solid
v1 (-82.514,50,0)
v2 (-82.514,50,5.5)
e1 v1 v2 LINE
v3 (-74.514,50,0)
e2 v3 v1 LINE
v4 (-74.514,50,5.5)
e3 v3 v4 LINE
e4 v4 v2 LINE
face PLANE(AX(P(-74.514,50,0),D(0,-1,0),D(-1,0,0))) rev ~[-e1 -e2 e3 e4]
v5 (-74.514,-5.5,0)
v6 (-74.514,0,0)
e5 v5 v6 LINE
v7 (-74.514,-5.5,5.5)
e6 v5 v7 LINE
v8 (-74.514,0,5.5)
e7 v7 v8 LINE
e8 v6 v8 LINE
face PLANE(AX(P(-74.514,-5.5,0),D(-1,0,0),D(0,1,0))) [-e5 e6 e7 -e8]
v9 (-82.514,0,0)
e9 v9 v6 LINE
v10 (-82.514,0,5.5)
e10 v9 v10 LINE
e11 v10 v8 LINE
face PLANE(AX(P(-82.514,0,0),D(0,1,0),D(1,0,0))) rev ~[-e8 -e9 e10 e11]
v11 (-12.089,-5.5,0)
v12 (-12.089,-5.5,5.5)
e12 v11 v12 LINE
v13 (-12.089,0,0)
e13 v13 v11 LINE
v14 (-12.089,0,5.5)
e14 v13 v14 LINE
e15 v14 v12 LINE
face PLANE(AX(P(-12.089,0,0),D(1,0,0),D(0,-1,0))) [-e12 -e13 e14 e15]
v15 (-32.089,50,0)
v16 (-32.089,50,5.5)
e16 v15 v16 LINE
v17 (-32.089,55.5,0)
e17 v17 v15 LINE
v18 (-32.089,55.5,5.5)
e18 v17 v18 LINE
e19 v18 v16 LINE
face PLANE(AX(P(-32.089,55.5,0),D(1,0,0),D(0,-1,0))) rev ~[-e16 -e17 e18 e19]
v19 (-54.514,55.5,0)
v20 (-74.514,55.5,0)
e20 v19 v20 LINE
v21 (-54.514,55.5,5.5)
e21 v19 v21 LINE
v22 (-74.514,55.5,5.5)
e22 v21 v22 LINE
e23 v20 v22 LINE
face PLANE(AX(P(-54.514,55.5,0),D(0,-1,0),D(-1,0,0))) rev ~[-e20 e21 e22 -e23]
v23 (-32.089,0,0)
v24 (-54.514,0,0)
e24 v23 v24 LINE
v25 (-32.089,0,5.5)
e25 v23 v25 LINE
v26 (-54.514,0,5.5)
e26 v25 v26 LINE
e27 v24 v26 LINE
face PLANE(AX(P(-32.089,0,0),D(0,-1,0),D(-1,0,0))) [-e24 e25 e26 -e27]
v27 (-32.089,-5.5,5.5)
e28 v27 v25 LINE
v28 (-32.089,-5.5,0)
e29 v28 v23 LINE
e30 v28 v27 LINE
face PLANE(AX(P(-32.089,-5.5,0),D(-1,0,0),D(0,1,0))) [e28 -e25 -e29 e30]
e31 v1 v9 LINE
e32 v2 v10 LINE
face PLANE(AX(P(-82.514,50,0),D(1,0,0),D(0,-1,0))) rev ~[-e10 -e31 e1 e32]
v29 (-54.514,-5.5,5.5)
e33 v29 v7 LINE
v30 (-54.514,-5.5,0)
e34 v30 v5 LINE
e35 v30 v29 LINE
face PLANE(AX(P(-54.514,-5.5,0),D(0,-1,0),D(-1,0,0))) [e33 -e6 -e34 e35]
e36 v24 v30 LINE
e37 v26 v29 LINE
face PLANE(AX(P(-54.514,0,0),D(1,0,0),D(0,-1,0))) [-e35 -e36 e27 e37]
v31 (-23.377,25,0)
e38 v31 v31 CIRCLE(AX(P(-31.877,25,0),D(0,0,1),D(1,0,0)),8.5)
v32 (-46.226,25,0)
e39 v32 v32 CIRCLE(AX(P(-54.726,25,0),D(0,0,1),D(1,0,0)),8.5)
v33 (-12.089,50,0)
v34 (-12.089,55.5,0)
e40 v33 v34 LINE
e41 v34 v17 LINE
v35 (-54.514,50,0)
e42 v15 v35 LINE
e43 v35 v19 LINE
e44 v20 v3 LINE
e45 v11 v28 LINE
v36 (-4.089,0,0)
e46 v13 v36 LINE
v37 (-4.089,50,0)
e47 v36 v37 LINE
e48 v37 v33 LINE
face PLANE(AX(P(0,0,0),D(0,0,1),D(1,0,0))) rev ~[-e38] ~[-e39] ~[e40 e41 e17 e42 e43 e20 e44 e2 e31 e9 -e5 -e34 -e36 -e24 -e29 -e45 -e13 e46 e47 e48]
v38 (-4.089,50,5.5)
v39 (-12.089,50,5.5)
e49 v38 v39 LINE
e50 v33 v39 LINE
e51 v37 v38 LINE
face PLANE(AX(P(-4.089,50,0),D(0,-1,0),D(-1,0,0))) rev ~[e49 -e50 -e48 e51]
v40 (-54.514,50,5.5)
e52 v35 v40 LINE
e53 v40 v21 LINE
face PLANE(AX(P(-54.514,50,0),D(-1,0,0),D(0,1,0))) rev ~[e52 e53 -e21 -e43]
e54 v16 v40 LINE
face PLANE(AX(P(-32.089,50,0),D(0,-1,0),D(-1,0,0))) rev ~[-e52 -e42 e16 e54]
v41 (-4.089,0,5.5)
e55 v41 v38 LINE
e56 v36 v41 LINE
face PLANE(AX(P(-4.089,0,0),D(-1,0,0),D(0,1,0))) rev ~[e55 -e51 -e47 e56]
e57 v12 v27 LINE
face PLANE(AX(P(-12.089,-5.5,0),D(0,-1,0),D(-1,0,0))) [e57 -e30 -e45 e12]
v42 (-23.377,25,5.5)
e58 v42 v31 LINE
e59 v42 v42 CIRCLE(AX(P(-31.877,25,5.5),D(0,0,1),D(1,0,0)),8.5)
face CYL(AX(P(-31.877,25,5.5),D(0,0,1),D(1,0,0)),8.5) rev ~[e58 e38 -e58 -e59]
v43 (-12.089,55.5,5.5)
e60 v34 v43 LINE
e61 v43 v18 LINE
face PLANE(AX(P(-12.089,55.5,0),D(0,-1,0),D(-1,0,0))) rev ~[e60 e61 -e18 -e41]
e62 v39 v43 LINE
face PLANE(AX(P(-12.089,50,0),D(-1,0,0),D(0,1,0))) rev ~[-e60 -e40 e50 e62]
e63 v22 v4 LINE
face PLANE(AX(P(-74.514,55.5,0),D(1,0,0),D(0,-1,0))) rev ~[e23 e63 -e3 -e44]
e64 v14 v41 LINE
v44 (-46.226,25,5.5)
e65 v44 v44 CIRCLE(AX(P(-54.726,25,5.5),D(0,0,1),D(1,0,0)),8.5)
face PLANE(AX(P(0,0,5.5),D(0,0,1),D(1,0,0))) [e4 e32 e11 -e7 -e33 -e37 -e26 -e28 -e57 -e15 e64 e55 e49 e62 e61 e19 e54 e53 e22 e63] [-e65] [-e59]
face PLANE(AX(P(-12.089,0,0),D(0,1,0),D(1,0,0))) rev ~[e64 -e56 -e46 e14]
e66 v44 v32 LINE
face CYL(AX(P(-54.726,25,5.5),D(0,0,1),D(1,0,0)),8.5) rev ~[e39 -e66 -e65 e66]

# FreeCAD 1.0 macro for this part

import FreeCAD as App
import Part
import Sketcher

V = App.Vector

doc = App.newDocument("Part")
params = doc.addObject("Spreadsheet::Sheet", "Params")
for row, (alias, value) in enumerate([
    ("sketch1_width", "8 mm"),
    ("sketch1_width2", "20 mm"),
    ("sketch1_height", "5.5 mm"),
    ("sketch1_height2", "50 mm"),
    ("pad1_length", "5.5 mm"),
    ("sketch2_diameter", "17 mm"),
    ("pocket1_length", "10 mm"),
], start=1):
    params.set(f"A{row}", alias)
    params.set(f"B{row}", "=" + value)
    params.setAlias(f"B{row}", alias)

body = doc.addObject("PartDesign::Body", "Body")

# Sketch on XY plane
sketch1 = doc.addObject("Sketcher::SketchObject", "Sketch")
body.addObject(sketch1)
sketch1.AttachmentSupport = (doc.XY_Plane, [""])
sketch1.MapMode = "FlatFace"
sketch1.addGeometry(Part.LineSegment(V(-12, -6, 0), V(-12, 0, 0)), False)
sketch1.addGeometry(Part.LineSegment(V(-12, 0, 0), V(-4, 0, 0)), False)
sketch1.addGeometry(Part.LineSegment(V(-4, 0, 0), V(-4, 50, 0)), False)
sketch1.addGeometry(Part.LineSegment(V(-4, 50, 0), V(-12, 50, 0)), False)
sketch1.addGeometry(Part.LineSegment(V(-12, 50, 0), V(-12, 56, 0)), False)
sketch1.addGeometry(Part.LineSegment(V(-12, 56, 0), V(-32, 56, 0)), False)
sketch1.addGeometry(Part.LineSegment(V(-32, 56, 0), V(-32, 50, 0)), False)
sketch1.addGeometry(Part.LineSegment(V(-32, 50, 0), V(-55, 50, 0)), False)
sketch1.addGeometry(Part.LineSegment(V(-55, 50, 0), V(-55, 56, 0)), False)
sketch1.addGeometry(Part.LineSegment(V(-55, 56, 0), V(-75, 56, 0)), False)
sketch1.addGeometry(Part.LineSegment(V(-75, 56, 0), V(-75, 50, 0)), False)
sketch1.addGeometry(Part.LineSegment(V(-75, 50, 0), V(-83, 50, 0)), False)
sketch1.addGeometry(Part.LineSegment(V(-83, 50, 0), V(-83, 0, 0)), False)
sketch1.addGeometry(Part.LineSegment(V(-83, 0, 0), V(-75, 0, 0)), False)
sketch1.addGeometry(Part.LineSegment(V(-75, 0, 0), V(-75, -6, 0)), False)
sketch1.addGeometry(Part.LineSegment(V(-75, -6, 0), V(-55, -6, 0)), False)
sketch1.addGeometry(Part.LineSegment(V(-55, -6, 0), V(-55, 0, 0)), False)
sketch1.addGeometry(Part.LineSegment(V(-55, 0, 0), V(-32, 0, 0)), False)
sketch1.addGeometry(Part.LineSegment(V(-32, 0, 0), V(-32, -6, 0)), False)
sketch1.addGeometry(Part.LineSegment(V(-32, -6, 0), V(-12, -6, 0)), False)
sketch1.addConstraint(Sketcher.Constraint("Coincident", 0, 2, 1, 1))
sketch1.addConstraint(Sketcher.Constraint("Coincident", 1, 2, 2, 1))
sketch1.addConstraint(Sketcher.Constraint("Coincident", 2, 2, 3, 1))
sketch1.addConstraint(Sketcher.Constraint("Coincident", 3, 2, 4, 1))
sketch1.addConstraint(Sketcher.Constraint("Coincident", 4, 2, 5, 1))
sketch1.addConstraint(Sketcher.Constraint("Coincident", 5, 2, 6, 1))
sketch1.addConstraint(Sketcher.Constraint("Coincident", 6, 2, 7, 1))
sketch1.addConstraint(Sketcher.Constraint("Coincident", 7, 2, 8, 1))
sketch1.addConstraint(Sketcher.Constraint("Coincident", 8, 2, 9, 1))
sketch1.addConstraint(Sketcher.Constraint("Coincident", 9, 2, 10, 1))
sketch1.addConstraint(Sketcher.Constraint("Coincident", 10, 2, 11, 1))
sketch1.addConstraint(Sketcher.Constraint("Coincident", 11, 2, 12, 1))
sketch1.addConstraint(Sketcher.Constraint("Coincident", 12, 2, 13, 1))
sketch1.addConstraint(Sketcher.Constraint("Coincident", 13, 2, 14, 1))
sketch1.addConstraint(Sketcher.Constraint("Coincident", 14, 2, 15, 1))
sketch1.addConstraint(Sketcher.Constraint("Coincident", 15, 2, 16, 1))
sketch1.addConstraint(Sketcher.Constraint("Coincident", 16, 2, 17, 1))
sketch1.addConstraint(Sketcher.Constraint("Coincident", 17, 2, 18, 1))
sketch1.addConstraint(Sketcher.Constraint("Coincident", 18, 2, 19, 1))
sketch1.addConstraint(Sketcher.Constraint("Coincident", 19, 2, 0, 1))
sketch1.addConstraint(Sketcher.Constraint("Vertical", 0))
sketch1.addConstraint(Sketcher.Constraint("Horizontal", 1))
sketch1.addConstraint(Sketcher.Constraint("Vertical", 2))
sketch1.addConstraint(Sketcher.Constraint("Horizontal", 3))
sketch1.addConstraint(Sketcher.Constraint("Vertical", 4))
sketch1.addConstraint(Sketcher.Constraint("Horizontal", 5))
sketch1.addConstraint(Sketcher.Constraint("Vertical", 6))
sketch1.addConstraint(Sketcher.Constraint("Horizontal", 7))
sketch1.addConstraint(Sketcher.Constraint("Vertical", 8))
sketch1.addConstraint(Sketcher.Constraint("Horizontal", 9))
sketch1.addConstraint(Sketcher.Constraint("Vertical", 10))
sketch1.addConstraint(Sketcher.Constraint("Horizontal", 11))
sketch1.addConstraint(Sketcher.Constraint("Vertical", 12))
sketch1.addConstraint(Sketcher.Constraint("Horizontal", 13))
sketch1.addConstraint(Sketcher.Constraint("Vertical", 14))
sketch1.addConstraint(Sketcher.Constraint("Horizontal", 15))
sketch1.addConstraint(Sketcher.Constraint("Vertical", 16))
sketch1.addConstraint(Sketcher.Constraint("Horizontal", 17))
sketch1.addConstraint(Sketcher.Constraint("Vertical", 18))
sketch1.addConstraint(Sketcher.Constraint("Horizontal", 19))
sketch1.addConstraint(Sketcher.Constraint("PointOnObject", 0, 2, -1))
sketch1.addConstraint(Sketcher.Constraint("PointOnObject", 12, 2, -1))
sketch1.addConstraint(Sketcher.Constraint("PointOnObject", 16, 2, -1))
sketch1.addConstraint(Sketcher.Constraint("Horizontal", 3, 2, 6, 2))
sketch1.addConstraint(Sketcher.Constraint("Horizontal", 5, 2, 8, 2))
sketch1.addConstraint(Sketcher.Constraint("Horizontal", 7, 2, 10, 2))
sketch1.addConstraint(Sketcher.Constraint("Horizontal", 15, 2, 18, 2))
sketch1.addConstraint(Sketcher.Constraint("Vertical", 0, 2, 3, 2))
sketch1.addConstraint(Sketcher.Constraint("Vertical", 10, 2, 13, 2))
sketch1.addConstraint(Sketcher.Constraint("Vertical", 8, 2, 15, 2))
sketch1.addConstraint(Sketcher.Constraint("Vertical", 6, 2, 17, 2))
sketch1.addConstraint(Sketcher.Constraint("Equal", 5, 9))
sketch1.addConstraint(Sketcher.Constraint("Equal", 3, 11))
sketch1.addConstraint(Sketcher.Constraint("Equal", 0, 4))
sketch1.addConstraint(Sketcher.Constraint("DistanceX", 1, 1, 1, 2, 8.0))
sketch1.addConstraint(Sketcher.Constraint("DistanceX", 5, 2, 5, 1, 20.0))
sketch1.addConstraint(Sketcher.Constraint("DistanceY", 0, 1, 0, 2, 5.5))
sketch1.addConstraint(Sketcher.Constraint("DistanceY", 2, 1, 2, 2, 50.0))
sketch1.addConstraint(Sketcher.Constraint("DistanceX", 7, 2, 7, 1, 22.425))
sketch1.addConstraint(Sketcher.Constraint("DistanceX", 0, 2, -1, 1, 12.089))
sketch1.setExpression("Constraints[54]", "Params.sketch1_width")
sketch1.setExpression("Constraints[55]", "Params.sketch1_width2")
sketch1.setExpression("Constraints[56]", "Params.sketch1_height")
sketch1.setExpression("Constraints[57]", "Params.sketch1_height2")
pad1 = doc.addObject("PartDesign::Pad", "Pad")
body.addObject(pad1)
pad1.Profile = sketch1
pad1.setExpression("Length", "Params.pad1_length")

# Sketch on XY plane
sketch2 = doc.addObject("Sketcher::SketchObject", "Sketch001")
body.addObject(sketch2)
sketch2.AttachmentSupport = (doc.XY_Plane, [""])
sketch2.MapMode = "FlatFace"
sketch2.AttachmentOffset = App.Placement(V(0, 0, 5.5), App.Rotation())
sketch2.addGeometry(Part.Circle(V(-32, 25, 0), V(0, 0, 1), 8), False)
sketch2.addGeometry(Part.Circle(V(-55, 25, 0), V(0, 0, 1), 8), False)
sketch2.addConstraint(Sketcher.Constraint("Equal", 0, 1))
sketch2.addConstraint(Sketcher.Constraint("Horizontal", 0, 3, 1, 3))
sketch2.addConstraint(Sketcher.Constraint("Diameter", 0, 17.0))
sketch2.addConstraint(Sketcher.Constraint("DistanceY", -1, 1, 0, 3, 25.0))
sketch2.addConstraint(Sketcher.Constraint("DistanceX", 0, 3, -1, 1, 31.877))
sketch2.addConstraint(Sketcher.Constraint("DistanceX", 1, 3, -1, 1, 54.726))
sketch2.setExpression("Constraints[2]", "Params.sketch2_diameter")
pocket1 = doc.addObject("PartDesign::Pocket", "Pocket")
body.addObject(pocket1)
pocket1.Profile = sketch2
pocket1.setExpression("Length", "Params.pocket1_length")

doc.recompute()
